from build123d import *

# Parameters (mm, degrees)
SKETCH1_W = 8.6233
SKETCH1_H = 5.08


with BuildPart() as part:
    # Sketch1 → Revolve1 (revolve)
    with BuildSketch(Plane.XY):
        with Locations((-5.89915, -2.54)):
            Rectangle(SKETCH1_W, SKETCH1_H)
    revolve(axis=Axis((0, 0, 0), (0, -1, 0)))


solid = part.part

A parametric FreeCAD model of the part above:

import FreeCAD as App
import Part
import Sketcher
from FreeCAD import Vector
Q = App.Units.Quantity

doc = App.newDocument("Part")
body = doc.addObject("PartDesign::Body", "Body")

# Sketch on XY plane
sketch1 = doc.addObject("Sketcher::SketchObject", "Sketch")
body.addObject(sketch1)
sketch1.AttachmentSupport = (doc.XY_Plane, [""])
sketch1.MapMode = "FlatFace"
sketch1.addGeometry([
    Part.LineSegment(Vector(-10, 0, 0), Vector(-10, -5, 0)),
    Part.LineSegment(Vector(-10, -5, 0), Vector(-2, -5, 0)),
    Part.LineSegment(Vector(-2, -5, 0), Vector(-2, 0, 0)),
    Part.LineSegment(Vector(-2, 0, 0), Vector(-10, 0, 0)),
], False)
sketch1.addConstraint([
    Sketcher.Constraint("Coincident", 0, 2, 1, 1),
    Sketcher.Constraint("Coincident", 1, 2, 2, 1),
    Sketcher.Constraint("Coincident", 2, 2, 3, 1),
    Sketcher.Constraint("Coincident", 3, 2, 0, 1),
    Sketcher.Constraint("Vertical", 0),
    Sketcher.Constraint("Horizontal", 1),
    Sketcher.Constraint("Vertical", 2),
    Sketcher.Constraint("Horizontal", 3),
    Sketcher.Constraint("PointOnObject", 2, 2, -1),
    Sketcher.Constraint("DistanceY", 0, 2, 0, 1, Q("0.2 in")),
    Sketcher.Constraint("DistanceX", 1, 1, 1, 2, Q("0.3395 in")),
    Sketcher.Constraint("DistanceX", 0, 2, -1, 1, Q("0.402 in")),
])
revolution = doc.addObject("PartDesign::Revolution", "Revolution")
body.addObject(revolution)
revolution.Profile = sketch1
revolution.ReferenceAxis = (sketch1, ["V_Axis"])
revolution.Angle = 360

doc.recompute()
